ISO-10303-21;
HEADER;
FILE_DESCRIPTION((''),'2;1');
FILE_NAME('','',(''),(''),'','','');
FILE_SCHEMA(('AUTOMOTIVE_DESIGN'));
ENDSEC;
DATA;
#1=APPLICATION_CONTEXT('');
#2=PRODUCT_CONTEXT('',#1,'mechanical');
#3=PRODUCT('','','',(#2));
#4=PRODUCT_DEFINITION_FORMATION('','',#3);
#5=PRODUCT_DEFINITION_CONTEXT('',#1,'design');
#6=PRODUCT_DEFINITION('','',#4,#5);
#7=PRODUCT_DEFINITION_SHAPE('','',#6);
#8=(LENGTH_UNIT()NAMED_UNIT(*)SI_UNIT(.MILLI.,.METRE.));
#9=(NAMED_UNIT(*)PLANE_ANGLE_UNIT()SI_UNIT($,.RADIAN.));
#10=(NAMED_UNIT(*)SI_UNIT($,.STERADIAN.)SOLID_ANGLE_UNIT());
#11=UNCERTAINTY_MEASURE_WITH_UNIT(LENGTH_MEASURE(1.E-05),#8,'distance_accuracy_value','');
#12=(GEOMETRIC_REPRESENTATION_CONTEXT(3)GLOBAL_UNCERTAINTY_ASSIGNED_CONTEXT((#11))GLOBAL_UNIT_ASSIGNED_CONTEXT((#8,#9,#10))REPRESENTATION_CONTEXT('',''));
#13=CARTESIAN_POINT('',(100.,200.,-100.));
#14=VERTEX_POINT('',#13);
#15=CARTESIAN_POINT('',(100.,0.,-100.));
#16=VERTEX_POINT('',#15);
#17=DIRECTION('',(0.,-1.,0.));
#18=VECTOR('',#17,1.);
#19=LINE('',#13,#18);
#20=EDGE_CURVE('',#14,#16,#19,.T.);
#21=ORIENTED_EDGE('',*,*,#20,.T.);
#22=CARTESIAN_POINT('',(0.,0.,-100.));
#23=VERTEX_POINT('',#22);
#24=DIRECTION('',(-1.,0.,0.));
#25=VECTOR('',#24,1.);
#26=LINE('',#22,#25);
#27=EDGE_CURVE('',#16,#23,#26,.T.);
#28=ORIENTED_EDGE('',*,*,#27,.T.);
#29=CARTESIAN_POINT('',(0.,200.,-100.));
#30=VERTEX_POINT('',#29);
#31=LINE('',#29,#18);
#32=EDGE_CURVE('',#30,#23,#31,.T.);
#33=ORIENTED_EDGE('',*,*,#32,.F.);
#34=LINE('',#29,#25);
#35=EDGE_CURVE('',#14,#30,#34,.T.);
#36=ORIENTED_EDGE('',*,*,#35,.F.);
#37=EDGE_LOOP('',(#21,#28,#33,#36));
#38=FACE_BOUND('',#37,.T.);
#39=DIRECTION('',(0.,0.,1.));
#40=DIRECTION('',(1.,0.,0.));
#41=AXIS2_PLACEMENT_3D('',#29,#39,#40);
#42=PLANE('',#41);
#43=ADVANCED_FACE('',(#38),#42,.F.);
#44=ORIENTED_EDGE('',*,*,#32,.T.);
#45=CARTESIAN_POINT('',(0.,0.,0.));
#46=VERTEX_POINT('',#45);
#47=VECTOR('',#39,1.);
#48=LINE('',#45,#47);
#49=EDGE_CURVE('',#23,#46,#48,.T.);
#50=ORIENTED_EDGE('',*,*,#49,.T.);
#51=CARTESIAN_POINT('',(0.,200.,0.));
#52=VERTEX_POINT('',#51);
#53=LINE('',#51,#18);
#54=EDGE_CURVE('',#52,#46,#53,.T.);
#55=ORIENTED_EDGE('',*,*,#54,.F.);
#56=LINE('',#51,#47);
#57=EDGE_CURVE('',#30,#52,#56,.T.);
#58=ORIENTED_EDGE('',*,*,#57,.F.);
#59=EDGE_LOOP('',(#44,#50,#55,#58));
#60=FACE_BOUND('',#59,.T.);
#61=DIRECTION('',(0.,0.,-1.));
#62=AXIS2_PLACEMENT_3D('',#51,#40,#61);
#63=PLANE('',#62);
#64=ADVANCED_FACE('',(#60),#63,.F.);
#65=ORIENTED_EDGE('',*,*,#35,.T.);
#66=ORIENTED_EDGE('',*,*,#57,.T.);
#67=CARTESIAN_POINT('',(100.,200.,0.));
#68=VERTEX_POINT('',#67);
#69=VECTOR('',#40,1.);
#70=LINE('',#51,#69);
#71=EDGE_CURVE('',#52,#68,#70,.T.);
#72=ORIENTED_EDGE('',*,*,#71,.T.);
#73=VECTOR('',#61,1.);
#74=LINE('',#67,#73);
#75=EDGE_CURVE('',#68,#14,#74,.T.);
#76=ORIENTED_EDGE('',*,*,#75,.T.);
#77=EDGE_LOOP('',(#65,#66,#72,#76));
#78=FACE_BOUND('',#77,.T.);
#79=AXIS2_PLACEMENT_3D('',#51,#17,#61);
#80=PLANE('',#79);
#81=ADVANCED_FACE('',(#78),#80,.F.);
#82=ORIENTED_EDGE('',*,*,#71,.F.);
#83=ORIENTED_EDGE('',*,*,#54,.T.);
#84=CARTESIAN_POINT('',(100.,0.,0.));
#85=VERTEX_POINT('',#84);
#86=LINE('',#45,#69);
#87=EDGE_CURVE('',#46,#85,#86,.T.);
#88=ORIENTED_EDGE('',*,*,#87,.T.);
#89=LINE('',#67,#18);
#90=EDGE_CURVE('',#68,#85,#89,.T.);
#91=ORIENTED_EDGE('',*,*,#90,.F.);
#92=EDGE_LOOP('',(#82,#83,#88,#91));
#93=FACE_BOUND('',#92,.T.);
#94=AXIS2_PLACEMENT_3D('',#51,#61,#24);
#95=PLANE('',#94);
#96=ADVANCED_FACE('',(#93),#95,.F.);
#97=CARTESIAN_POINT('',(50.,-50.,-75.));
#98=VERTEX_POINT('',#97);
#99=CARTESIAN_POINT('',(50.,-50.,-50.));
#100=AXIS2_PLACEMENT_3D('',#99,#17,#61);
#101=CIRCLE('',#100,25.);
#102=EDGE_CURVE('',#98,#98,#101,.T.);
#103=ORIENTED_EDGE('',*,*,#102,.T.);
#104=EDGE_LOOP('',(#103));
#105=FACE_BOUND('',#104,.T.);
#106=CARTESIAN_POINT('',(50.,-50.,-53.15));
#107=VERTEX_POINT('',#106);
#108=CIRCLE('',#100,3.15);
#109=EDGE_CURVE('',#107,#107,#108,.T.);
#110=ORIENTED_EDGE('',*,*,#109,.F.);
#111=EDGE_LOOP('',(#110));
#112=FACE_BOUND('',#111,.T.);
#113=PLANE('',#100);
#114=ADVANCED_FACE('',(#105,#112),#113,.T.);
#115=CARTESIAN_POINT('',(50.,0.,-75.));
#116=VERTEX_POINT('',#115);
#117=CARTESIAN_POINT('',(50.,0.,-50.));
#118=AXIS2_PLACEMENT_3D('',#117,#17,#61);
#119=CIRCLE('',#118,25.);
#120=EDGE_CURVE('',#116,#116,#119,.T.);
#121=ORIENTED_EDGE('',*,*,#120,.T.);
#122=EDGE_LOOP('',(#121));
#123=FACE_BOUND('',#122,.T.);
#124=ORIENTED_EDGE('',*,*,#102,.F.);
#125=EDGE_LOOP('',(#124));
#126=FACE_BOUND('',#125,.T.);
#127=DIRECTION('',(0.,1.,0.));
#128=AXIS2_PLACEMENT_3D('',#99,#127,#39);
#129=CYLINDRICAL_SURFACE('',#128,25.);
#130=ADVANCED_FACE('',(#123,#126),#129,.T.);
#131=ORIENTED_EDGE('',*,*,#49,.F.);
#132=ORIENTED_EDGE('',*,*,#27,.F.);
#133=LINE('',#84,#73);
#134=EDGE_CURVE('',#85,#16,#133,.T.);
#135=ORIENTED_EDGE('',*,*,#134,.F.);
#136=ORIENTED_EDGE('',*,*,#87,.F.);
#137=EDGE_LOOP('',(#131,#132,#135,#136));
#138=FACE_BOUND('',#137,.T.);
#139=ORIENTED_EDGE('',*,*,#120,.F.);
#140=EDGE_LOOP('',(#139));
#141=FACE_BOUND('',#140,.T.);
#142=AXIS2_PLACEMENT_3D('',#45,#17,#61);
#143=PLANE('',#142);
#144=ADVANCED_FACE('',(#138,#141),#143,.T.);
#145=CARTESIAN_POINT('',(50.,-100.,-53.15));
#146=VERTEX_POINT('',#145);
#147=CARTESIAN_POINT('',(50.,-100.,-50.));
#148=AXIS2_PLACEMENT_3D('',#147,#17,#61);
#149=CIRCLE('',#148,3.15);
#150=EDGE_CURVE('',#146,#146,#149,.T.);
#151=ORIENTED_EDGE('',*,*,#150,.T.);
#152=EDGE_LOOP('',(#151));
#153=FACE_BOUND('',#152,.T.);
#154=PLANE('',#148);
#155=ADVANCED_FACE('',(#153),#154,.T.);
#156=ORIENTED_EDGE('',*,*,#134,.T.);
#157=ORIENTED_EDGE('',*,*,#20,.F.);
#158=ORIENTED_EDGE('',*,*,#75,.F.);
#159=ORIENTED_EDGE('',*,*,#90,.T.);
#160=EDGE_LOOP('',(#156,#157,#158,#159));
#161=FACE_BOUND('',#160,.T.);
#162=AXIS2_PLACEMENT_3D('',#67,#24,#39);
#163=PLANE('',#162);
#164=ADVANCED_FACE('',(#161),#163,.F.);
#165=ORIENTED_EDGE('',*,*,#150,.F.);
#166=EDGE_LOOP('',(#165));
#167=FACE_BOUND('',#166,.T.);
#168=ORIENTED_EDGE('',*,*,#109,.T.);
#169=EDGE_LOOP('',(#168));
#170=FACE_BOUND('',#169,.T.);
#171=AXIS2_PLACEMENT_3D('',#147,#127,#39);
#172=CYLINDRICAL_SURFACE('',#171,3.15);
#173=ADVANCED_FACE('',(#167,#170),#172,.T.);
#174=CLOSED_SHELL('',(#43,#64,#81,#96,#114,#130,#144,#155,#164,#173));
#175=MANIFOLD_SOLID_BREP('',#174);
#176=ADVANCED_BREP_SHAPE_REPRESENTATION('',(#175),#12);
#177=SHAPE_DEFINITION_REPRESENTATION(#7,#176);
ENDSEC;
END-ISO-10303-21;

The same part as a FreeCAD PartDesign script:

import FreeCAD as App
import Part
import Sketcher


def add_polygon(sketch, points):
    """Adds a closed chain of lines whose ends are joined by coincident constraints."""
    first, n = sketch.GeometryCount, len(points)
    for a, b in zip(points, points[1:] + points[:1]):
        sketch.addGeometry(Part.LineSegment(App.Vector(*a, 0), App.Vector(*b, 0)), False)
    for i in range(n):
        sketch.addConstraint(Sketcher.Constraint("Coincident", first + i, 2, first + (i + 1) % n, 1))

doc = App.newDocument("Part")
body = doc.addObject("PartDesign::Body", "Body")

# Sketch on XZ plane
sketch1 = body.newObject("Sketcher::SketchObject", "Sketch")
sketch1.AttachmentSupport = (doc.getObject("XZ_Plane"), [""])
sketch1.MapMode = "FlatFace"
add_polygon(sketch1, [(0, -100), (0, 0), (100, 0), (100, -100)])  # lines 0-3
sketch1.addConstraint([
    Sketcher.Constraint("Vertical", 0),
    Sketcher.Constraint("Horizontal", 1),
    Sketcher.Constraint("Vertical", 2),
    Sketcher.Constraint("Horizontal", 3),
    Sketcher.Constraint("Coincident", 0, 2, -1, 1),
    Sketcher.Constraint("Equal", 3, 0),
    Sketcher.Constraint("DistanceX", 1, 1, 1, 2, 100.0),
])
pad1 = body.newObject("PartDesign::Pad", "Pad")
pad1.Profile = sketch1
pad1.Length = 200
pad1.Reversed = True

# Sketch on XZ plane
sketch2 = body.newObject("Sketcher::SketchObject", "Sketch001")
sketch2.AttachmentSupport = (doc.getObject("XZ_Plane"), [""])
sketch2.MapMode = "FlatFace"
sketch2.addGeometry(Part.Circle(App.Vector(50, -50, 0), App.Vector(0, 0, 1), 25), False)
sketch2.addConstraint([
    Sketcher.Constraint("Diameter", 0, 50.0),
    Sketcher.Constraint("DistanceX", -1, 1, 0, 3, 50.0),
    Sketcher.Constraint("DistanceY", 0, 3, -1, 1, 50.0),
])
pad2 = body.newObject("PartDesign::Pad", "Pad001")
pad2.Profile = sketch2
pad2.Length = 50

# Sketch on XZ plane
sketch3 = body.newObject("Sketcher::SketchObject", "Sketch002")
sketch3.AttachmentSupport = (doc.getObject("XZ_Plane"), [""])
sketch3.MapMode = "FlatFace"
sketch3.AttachmentOffset = App.Placement(App.Vector(0, 0, 50), App.Rotation())
sketch3.addGeometry(Part.Circle(App.Vector(50, -50, 0), App.Vector(0, 0, 1), 3.1), False)
sketch3.addConstraint([
    Sketcher.Constraint("Diameter", 0, 6.3),
    Sketcher.Constraint("DistanceX", -1, 1, 0, 3, 50.0),
    Sketcher.Constraint("DistanceY", 0, 3, -1, 1, 50.0),
])
pad3 = body.newObject("PartDesign::Pad", "Pad002")
pad3.Profile = sketch3
pad3.Length = 50

doc.recompute()
